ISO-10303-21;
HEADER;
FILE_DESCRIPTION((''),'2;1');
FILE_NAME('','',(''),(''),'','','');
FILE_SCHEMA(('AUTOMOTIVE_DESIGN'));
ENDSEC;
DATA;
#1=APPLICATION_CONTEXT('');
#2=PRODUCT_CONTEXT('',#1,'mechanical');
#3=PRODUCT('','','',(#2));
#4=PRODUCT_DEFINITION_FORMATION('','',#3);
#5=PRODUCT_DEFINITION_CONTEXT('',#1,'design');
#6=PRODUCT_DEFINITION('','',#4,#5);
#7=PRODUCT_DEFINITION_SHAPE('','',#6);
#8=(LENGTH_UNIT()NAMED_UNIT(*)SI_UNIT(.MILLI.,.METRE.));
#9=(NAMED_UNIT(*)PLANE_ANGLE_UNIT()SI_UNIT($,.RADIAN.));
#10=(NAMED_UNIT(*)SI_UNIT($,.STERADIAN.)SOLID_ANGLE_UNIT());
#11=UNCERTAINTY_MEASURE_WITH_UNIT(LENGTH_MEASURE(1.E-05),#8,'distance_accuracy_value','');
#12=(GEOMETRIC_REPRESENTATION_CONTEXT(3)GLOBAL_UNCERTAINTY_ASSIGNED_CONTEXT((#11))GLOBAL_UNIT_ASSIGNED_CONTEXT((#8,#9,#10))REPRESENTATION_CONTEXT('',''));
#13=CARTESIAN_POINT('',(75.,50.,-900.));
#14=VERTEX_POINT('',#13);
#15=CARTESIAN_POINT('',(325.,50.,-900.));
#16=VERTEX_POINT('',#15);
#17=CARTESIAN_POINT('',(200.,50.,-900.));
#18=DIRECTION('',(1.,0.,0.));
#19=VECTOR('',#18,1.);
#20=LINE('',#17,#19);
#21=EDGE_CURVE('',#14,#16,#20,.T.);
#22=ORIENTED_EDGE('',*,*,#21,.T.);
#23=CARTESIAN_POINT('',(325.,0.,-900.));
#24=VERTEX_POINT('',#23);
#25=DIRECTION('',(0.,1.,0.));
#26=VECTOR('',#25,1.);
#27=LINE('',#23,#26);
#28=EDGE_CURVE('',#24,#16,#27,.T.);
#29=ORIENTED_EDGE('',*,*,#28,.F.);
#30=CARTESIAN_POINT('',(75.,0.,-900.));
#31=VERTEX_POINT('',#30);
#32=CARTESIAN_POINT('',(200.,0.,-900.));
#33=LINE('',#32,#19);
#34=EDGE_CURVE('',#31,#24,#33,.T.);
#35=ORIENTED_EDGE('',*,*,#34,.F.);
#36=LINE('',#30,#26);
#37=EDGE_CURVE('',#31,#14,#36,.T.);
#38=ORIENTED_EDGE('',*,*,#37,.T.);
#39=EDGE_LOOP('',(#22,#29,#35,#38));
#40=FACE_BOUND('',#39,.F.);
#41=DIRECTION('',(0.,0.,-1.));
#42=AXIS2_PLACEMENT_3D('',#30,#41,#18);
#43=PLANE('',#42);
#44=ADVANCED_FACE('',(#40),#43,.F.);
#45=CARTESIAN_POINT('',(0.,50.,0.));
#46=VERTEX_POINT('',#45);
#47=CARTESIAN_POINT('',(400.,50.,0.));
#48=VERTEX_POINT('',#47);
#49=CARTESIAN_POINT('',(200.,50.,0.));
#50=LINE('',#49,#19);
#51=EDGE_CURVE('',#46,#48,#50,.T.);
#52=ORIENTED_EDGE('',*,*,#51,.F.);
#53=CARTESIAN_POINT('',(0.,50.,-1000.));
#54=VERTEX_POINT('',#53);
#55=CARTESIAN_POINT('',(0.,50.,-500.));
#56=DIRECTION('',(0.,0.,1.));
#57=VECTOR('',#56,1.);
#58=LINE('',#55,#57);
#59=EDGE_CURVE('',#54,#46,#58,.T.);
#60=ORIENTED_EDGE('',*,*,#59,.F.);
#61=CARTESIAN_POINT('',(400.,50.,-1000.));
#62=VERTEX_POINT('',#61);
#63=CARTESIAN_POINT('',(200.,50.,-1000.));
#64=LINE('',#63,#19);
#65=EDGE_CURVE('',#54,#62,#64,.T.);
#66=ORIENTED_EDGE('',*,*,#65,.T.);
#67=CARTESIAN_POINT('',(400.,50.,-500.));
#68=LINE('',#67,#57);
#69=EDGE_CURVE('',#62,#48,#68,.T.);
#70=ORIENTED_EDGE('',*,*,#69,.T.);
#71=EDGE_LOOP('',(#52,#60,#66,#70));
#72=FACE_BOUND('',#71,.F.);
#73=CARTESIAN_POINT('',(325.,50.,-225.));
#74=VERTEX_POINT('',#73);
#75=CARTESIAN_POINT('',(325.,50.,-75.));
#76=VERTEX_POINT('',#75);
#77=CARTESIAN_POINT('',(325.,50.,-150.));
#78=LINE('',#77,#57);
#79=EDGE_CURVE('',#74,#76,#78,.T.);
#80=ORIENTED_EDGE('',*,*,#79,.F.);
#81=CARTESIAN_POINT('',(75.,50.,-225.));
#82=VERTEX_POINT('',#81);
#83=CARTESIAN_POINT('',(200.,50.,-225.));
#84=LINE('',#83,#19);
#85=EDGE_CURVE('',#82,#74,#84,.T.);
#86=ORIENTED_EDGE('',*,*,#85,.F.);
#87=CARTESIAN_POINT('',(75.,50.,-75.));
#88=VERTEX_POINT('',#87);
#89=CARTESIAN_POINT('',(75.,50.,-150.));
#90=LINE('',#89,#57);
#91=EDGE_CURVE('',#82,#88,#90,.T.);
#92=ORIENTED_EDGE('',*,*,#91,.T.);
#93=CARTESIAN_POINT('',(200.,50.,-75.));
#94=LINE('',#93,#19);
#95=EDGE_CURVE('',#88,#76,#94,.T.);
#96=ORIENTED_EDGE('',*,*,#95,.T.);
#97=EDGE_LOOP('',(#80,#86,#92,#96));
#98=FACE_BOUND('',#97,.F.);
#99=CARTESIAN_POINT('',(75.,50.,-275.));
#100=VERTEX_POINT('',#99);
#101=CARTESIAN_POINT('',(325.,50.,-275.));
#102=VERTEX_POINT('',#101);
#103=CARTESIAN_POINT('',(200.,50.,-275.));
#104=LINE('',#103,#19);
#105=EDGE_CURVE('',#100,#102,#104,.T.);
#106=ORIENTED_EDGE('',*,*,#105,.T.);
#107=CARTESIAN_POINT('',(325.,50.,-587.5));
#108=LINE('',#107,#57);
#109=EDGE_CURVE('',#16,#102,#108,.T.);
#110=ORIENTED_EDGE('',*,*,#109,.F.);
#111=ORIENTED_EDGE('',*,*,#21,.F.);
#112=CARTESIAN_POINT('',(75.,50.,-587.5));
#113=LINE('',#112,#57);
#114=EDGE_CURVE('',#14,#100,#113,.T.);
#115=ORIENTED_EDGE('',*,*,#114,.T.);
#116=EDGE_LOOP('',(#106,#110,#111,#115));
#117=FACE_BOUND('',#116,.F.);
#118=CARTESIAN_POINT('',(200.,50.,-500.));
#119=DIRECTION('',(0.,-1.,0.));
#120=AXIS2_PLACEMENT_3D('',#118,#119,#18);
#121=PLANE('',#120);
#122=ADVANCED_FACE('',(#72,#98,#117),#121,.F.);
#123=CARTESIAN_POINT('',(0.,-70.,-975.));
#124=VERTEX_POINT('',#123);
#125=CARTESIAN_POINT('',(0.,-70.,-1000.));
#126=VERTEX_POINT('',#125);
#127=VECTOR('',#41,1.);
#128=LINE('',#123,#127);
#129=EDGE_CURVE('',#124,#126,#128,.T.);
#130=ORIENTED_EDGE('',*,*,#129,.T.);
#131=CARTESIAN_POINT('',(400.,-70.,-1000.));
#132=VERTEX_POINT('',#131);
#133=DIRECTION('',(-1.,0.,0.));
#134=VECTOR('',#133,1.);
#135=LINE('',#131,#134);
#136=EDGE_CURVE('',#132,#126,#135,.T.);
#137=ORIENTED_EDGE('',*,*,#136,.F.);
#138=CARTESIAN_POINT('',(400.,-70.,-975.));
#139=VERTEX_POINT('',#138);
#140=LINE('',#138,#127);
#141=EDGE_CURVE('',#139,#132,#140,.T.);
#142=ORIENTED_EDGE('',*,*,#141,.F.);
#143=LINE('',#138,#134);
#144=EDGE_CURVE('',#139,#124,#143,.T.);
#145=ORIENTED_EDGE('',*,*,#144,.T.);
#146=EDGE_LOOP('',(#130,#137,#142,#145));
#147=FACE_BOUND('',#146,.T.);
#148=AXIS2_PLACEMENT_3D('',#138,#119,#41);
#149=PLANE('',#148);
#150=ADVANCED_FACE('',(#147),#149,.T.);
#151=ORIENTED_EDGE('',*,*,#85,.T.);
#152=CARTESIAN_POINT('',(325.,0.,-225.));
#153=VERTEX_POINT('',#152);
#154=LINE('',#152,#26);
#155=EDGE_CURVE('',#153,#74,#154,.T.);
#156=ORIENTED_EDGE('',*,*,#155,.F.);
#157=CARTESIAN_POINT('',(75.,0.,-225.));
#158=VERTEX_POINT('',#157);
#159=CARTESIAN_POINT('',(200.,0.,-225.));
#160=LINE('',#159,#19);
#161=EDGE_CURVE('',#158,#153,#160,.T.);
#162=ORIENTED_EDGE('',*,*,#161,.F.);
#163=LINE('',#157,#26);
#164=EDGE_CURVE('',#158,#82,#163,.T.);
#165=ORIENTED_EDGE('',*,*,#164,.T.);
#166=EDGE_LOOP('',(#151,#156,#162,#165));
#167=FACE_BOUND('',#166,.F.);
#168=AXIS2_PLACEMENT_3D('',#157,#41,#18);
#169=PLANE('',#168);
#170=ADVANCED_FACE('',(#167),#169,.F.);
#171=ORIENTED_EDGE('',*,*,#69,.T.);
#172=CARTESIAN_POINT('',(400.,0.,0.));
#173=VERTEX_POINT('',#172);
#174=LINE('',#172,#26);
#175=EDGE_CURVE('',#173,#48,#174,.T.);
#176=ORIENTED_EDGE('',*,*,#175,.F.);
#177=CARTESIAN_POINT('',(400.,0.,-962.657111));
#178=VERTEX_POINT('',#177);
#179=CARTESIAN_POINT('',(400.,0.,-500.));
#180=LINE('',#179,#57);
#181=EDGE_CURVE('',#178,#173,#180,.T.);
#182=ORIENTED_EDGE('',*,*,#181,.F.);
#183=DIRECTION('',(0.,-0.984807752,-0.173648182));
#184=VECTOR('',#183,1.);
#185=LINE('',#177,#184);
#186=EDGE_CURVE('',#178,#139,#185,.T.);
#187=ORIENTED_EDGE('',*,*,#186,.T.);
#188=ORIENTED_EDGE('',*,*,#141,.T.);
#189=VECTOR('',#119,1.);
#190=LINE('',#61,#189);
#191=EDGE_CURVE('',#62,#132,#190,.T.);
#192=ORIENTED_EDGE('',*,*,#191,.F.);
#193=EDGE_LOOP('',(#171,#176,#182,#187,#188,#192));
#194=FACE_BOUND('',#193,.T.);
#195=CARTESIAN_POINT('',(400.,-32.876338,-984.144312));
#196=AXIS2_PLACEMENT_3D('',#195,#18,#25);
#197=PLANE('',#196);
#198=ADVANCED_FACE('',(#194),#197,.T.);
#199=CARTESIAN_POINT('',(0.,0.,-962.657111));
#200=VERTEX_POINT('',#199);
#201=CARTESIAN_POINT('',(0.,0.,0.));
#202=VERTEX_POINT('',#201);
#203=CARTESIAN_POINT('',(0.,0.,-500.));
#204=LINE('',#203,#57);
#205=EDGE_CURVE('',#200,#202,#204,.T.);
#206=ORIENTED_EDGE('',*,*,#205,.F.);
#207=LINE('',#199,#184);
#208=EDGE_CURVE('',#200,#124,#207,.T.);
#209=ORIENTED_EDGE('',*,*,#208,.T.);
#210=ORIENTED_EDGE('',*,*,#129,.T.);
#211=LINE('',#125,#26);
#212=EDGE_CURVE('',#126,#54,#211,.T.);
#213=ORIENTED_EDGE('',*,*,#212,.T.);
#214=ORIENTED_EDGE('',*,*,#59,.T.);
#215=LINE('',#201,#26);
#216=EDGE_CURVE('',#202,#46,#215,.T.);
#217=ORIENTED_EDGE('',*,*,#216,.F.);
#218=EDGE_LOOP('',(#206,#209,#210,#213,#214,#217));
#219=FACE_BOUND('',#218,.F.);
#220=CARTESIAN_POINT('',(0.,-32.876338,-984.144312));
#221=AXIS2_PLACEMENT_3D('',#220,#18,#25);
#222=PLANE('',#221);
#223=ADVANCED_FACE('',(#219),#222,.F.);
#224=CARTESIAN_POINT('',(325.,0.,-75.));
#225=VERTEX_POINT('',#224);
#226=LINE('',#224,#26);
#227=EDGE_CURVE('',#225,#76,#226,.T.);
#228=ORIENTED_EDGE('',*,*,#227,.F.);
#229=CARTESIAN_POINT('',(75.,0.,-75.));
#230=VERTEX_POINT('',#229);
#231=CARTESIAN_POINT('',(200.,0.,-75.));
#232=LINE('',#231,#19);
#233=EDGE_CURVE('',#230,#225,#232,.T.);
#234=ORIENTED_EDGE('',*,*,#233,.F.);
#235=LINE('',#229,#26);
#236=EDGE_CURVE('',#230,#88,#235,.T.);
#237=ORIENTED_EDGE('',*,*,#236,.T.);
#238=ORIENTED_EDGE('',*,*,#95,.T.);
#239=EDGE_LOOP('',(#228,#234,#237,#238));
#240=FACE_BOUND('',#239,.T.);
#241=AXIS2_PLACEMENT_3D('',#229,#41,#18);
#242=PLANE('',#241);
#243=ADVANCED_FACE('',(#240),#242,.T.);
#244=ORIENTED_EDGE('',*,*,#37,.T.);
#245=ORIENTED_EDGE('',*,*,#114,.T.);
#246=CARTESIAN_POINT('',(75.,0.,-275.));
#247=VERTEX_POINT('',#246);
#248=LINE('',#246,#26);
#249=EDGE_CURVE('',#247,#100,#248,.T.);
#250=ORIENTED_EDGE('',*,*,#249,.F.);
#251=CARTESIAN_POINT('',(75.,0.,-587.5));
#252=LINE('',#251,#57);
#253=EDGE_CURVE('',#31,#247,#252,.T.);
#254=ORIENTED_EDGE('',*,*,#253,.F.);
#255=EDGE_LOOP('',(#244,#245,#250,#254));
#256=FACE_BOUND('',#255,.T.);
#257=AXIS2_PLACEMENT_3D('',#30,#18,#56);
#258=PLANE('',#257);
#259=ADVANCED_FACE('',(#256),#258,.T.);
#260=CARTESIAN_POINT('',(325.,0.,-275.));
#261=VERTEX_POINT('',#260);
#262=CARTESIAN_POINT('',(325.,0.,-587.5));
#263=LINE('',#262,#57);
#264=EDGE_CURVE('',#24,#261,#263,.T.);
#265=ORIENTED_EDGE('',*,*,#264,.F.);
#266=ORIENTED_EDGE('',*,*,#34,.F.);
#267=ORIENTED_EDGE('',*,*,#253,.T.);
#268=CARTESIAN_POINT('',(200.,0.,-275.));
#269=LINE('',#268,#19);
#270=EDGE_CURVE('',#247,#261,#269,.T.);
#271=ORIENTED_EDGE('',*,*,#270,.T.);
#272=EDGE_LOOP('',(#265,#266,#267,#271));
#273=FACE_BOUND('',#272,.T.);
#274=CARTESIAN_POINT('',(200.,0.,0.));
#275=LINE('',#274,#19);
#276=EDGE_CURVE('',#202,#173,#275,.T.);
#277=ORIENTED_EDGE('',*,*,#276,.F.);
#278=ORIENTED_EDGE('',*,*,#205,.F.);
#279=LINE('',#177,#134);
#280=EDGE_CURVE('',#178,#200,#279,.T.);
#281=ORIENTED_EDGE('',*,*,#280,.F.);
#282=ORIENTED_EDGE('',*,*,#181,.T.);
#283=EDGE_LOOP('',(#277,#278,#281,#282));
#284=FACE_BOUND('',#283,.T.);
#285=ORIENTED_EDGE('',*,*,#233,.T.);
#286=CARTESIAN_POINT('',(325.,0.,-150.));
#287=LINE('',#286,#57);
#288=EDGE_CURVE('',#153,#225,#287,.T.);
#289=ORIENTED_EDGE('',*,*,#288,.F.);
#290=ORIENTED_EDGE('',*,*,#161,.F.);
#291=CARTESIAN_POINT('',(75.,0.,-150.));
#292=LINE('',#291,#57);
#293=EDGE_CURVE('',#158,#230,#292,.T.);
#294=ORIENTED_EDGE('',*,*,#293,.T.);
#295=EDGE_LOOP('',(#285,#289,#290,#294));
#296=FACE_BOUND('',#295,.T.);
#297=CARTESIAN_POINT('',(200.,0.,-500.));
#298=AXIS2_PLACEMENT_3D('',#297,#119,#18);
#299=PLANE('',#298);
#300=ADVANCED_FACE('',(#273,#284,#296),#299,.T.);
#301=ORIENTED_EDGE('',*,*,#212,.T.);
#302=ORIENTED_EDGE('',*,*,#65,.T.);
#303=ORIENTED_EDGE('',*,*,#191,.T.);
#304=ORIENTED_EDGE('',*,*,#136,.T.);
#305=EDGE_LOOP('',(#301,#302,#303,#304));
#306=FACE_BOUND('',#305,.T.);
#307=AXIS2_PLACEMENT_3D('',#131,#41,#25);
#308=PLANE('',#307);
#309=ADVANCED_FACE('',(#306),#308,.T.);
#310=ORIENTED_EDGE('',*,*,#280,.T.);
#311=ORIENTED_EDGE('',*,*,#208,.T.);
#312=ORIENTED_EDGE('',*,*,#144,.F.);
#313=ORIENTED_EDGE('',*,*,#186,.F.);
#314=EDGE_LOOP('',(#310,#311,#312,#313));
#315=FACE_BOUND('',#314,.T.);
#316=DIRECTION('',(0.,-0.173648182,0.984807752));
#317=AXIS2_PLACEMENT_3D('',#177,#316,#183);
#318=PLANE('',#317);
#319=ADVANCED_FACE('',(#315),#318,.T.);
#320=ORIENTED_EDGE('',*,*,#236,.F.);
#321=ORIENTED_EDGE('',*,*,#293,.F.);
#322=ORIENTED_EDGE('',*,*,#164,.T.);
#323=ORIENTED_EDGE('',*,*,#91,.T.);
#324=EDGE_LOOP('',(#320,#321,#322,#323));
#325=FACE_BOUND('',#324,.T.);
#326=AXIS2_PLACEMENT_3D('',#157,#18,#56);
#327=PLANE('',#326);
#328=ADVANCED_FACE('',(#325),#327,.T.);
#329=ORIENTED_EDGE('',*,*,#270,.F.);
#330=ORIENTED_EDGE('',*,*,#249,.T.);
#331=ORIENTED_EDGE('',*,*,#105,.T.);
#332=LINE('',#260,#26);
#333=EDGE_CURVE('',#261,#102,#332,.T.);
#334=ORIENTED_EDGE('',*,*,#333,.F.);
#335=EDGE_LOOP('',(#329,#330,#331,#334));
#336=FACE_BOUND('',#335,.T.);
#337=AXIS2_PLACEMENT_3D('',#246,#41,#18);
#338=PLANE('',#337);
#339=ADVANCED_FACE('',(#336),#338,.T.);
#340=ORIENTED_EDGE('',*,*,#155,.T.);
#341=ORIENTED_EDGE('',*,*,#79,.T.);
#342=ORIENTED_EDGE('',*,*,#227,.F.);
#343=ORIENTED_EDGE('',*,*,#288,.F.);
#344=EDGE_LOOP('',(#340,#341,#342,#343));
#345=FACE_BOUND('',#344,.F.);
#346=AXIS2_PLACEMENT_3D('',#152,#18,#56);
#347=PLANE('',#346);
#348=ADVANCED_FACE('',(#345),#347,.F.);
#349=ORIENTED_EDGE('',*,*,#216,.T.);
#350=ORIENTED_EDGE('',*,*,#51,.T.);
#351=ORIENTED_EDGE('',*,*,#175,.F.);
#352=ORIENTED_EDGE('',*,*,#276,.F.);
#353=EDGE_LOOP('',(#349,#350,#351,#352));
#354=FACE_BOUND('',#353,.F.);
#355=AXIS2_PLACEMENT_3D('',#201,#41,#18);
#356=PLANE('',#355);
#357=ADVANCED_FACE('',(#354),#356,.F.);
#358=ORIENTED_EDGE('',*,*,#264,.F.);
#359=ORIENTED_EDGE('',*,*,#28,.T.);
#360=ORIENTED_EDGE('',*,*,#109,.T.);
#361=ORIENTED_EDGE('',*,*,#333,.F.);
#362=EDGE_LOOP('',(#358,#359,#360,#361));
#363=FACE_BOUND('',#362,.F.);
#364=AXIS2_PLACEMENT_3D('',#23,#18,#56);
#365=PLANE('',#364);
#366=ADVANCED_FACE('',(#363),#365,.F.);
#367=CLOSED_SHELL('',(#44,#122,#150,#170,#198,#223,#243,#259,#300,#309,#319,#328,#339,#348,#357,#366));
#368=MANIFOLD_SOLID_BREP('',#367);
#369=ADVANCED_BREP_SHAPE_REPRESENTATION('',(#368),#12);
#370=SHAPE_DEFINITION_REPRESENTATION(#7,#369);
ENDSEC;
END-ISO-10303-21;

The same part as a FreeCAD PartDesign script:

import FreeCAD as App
import Part
import Sketcher
Q = App.Units.Quantity


def add_polygon(sketch, points):
    """Adds a closed chain of lines whose ends are joined by coincident constraints."""
    first, n = sketch.GeometryCount, len(points)
    for a, b in zip(points, points[1:] + points[:1]):
        sketch.addGeometry(Part.LineSegment(App.Vector(*a, 0), App.Vector(*b, 0)), False)
    for i in range(n):
        sketch.addConstraint(Sketcher.Constraint("Coincident", first + i, 2, first + (i + 1) % n, 1))

doc = App.newDocument("Part")
body = doc.addObject("PartDesign::Body", "Body")

# Sketch on XZ plane
sketch1 = doc.addObject("Sketcher::SketchObject", "Sketch")
body.addObject(sketch1)
sketch1.AttachmentSupport = (doc.XZ_Plane, [""])
sketch1.MapMode = "FlatFace"
add_polygon(sketch1, [(0, 0), (0, -1000), (400, -1000), (400, 0)])  # lines 0-3
add_polygon(sketch1, [(325, -900), (75, -900), (75, -275), (325, -275)])  # lines 4-7
add_polygon(sketch1, [(325, -225), (75, -225), (75, -75), (325, -75)])  # lines 8-11
sketch1.addConstraint([
    Sketcher.Constraint("Vertical", 0),
    Sketcher.Constraint("Horizontal", 1),
    Sketcher.Constraint("Vertical", 2),
    Sketcher.Constraint("Horizontal", 3),
    Sketcher.Constraint("Horizontal", 4),
    Sketcher.Constraint("Vertical", 5),
    Sketcher.Constraint("Horizontal", 6),
    Sketcher.Constraint("Vertical", 7),
    Sketcher.Constraint("Horizontal", 8),
    Sketcher.Constraint("Vertical", 9),
    Sketcher.Constraint("Horizontal", 10),
    Sketcher.Constraint("Vertical", 11),
    Sketcher.Constraint("Coincident", 3, 2, -1, 1),
    Sketcher.Constraint("Vertical", 5, 2, 8, 2),
    Sketcher.Constraint("Vertical", 7, 2, 10, 2),
    Sketcher.Constraint("DistanceX", 1, 1, 1, 2, 400.0),
    Sketcher.Constraint("DistanceX", 4, 2, 4, 1, 250.0),
    Sketcher.Constraint("DistanceY", 0, 2, 0, 1, 1000.0),
    Sketcher.Constraint("DistanceY", 5, 1, 5, 2, 625.0),
    Sketcher.Constraint("DistanceY", 9, 1, 9, 2, 150.0),
    Sketcher.Constraint("DistanceX", -1, 1, 4, 2, 75.0),
    Sketcher.Constraint("DistanceY", 4, 2, -1, 1, 900.0),
    Sketcher.Constraint("DistanceY", 8, 2, -1, 1, 225.0),
])
pad1 = doc.addObject("PartDesign::Pad", "Pad")
body.addObject(pad1)
pad1.Profile = sketch1
pad1.Length = 50
pad1.Reversed = True

# Sketch on YZ plane
sketch2 = doc.addObject("Sketcher::SketchObject", "Sketch001")
body.addObject(sketch2)
sketch2.AttachmentSupport = (doc.YZ_Plane, [""])
sketch2.MapMode = "FlatFace"
sketch2.AttachmentOffset = App.Placement(App.Vector(0, 0, 400), App.Rotation())
add_polygon(sketch2, [(-70, -1000), (0, -1000), (0, -962.657111), (-70, -975)])  # lines 0-3
sketch2.addConstraint([
    Sketcher.Constraint("Horizontal", 0),
    Sketcher.Constraint("Vertical", 1),
    Sketcher.Constraint("Vertical", 3),
    Sketcher.Constraint("PointOnObject", 0, 2, -2),
    Sketcher.Constraint("DistanceX", 0, 1, 0, 2, 70.0),
    Sketcher.Constraint("DistanceY", 3, 2, 3, 1, 25.0),
    Sketcher.Constraint("Angle", 2, Q("-170 deg")),
    Sketcher.Constraint("DistanceY", 0, 2, -1, 1, 1000.0),
])
pad2 = doc.addObject("PartDesign::Pad", "Pad001")
body.addObject(pad2)
pad2.Profile = sketch2
pad2.Length = 400
pad2.Reversed = True

doc.recompute()
